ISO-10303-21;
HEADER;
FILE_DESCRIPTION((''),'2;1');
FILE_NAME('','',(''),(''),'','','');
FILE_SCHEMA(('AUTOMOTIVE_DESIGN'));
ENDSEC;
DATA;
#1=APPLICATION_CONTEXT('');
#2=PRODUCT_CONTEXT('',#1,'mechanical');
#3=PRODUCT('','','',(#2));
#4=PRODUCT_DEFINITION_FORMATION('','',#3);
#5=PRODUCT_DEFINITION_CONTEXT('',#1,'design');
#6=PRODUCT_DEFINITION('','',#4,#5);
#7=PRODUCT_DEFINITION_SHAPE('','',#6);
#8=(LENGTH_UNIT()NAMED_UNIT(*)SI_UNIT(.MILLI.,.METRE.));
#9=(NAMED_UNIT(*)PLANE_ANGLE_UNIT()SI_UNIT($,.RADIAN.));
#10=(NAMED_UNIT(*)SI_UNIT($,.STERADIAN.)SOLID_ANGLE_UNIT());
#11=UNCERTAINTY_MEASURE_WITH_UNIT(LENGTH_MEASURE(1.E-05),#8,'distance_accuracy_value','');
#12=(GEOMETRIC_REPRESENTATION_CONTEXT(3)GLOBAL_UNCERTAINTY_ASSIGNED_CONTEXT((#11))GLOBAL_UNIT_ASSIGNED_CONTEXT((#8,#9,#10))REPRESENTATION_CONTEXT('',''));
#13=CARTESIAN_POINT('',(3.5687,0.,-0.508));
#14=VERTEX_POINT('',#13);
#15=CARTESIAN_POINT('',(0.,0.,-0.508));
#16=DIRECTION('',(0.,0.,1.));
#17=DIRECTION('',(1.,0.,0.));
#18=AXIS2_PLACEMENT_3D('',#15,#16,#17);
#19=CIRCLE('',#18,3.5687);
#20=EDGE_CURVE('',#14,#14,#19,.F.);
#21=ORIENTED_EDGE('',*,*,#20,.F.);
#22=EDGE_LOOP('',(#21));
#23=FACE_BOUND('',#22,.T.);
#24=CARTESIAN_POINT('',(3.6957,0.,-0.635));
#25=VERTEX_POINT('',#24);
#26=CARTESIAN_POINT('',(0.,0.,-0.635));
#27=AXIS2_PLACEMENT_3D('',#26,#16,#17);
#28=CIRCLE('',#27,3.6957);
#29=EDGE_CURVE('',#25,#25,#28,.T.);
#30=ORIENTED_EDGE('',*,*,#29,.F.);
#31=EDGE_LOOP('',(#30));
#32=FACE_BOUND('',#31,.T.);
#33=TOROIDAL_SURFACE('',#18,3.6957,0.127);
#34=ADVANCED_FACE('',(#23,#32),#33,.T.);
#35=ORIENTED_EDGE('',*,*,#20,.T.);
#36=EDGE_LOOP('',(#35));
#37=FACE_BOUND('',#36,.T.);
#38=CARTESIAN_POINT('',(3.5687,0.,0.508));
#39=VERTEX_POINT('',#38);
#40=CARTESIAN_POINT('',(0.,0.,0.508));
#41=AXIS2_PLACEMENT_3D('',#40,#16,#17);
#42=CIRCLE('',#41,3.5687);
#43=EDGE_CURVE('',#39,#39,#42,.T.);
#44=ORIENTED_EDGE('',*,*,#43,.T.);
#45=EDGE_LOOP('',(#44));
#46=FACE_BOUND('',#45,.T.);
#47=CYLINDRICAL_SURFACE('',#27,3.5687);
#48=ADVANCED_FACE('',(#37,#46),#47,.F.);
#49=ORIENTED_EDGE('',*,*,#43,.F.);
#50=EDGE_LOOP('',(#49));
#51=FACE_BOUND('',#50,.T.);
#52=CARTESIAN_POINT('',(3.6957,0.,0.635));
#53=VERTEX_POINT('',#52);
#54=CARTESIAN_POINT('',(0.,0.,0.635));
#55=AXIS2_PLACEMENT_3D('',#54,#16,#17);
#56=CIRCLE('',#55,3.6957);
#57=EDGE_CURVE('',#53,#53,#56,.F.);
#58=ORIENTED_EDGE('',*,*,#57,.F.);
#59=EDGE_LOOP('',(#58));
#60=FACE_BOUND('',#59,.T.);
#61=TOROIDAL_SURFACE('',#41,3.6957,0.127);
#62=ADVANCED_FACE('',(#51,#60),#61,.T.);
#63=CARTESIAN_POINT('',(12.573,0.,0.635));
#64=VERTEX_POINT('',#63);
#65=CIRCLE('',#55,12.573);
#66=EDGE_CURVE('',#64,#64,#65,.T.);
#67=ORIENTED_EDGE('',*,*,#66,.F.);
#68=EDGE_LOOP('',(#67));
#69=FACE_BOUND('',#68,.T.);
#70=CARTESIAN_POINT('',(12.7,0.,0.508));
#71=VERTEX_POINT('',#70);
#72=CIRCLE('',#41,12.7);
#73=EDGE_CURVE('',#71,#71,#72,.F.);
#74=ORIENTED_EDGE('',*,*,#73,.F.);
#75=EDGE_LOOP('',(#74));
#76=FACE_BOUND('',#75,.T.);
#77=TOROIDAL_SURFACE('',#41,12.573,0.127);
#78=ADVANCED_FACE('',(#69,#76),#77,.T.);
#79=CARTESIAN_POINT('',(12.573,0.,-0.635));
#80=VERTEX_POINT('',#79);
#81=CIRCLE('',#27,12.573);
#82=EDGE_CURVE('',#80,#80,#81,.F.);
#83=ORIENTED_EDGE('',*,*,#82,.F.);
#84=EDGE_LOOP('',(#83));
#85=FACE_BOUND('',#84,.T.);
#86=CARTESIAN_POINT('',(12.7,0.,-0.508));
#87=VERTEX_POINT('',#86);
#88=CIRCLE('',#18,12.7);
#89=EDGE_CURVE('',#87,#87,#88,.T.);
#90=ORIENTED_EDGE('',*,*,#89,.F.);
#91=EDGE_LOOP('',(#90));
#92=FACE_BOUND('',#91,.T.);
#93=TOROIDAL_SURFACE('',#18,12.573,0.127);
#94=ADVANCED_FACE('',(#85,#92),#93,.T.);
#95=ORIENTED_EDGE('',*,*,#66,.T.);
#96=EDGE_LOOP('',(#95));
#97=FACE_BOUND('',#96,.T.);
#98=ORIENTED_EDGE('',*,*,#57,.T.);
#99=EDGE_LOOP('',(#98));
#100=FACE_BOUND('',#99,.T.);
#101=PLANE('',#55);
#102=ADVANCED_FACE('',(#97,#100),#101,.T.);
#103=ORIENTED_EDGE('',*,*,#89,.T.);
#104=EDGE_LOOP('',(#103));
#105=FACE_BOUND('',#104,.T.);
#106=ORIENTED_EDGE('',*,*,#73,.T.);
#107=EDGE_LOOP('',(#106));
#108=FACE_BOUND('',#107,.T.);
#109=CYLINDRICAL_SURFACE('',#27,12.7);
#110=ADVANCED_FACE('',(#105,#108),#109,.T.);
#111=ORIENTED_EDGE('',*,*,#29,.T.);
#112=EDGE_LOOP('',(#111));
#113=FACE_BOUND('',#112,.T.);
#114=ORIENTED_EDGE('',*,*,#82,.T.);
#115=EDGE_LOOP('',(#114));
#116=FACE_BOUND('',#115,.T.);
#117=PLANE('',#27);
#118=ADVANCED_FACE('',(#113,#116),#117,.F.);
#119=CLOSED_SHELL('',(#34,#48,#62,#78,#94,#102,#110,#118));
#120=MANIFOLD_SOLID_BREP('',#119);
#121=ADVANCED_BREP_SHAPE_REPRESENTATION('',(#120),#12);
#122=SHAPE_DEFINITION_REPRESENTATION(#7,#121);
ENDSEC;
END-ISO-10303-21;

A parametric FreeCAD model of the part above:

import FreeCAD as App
import Part
import Sketcher

V = App.Vector
Q = App.Units.Quantity


def edges_at(feature, points):
    """Names of the edges that pass closest to the given points."""
    edges = feature.Shape.Edges
    near = lambda p: min(range(len(edges)), key=lambda i: edges[i].distToShape(Part.Vertex(*p))[0])
    return sorted({f"Edge{near(p) + 1}" for p in points})

doc = App.newDocument("Part")
body = doc.addObject("PartDesign::Body", "Body")

sketch1 = body.newObject("Sketcher::SketchObject", "Sketch")
sketch1.AttachmentSupport = (doc.getObject("XY_Plane"), [""])
sketch1.MapMode = "FlatFace"
sketch1.AttachmentOffset = App.Placement(V(0, 0, 0.025 * 25.4), App.Rotation())
sketch1.addGeometry([
    Part.Circle(V(0, 0, 0), V(0, 0, 1), 12.7),
    Part.Circle(V(0, 0, 0), V(0, 0, 1), 3.6),
], False)
sketch1.addConstraint([
    Sketcher.Constraint("Coincident", 0, 3, -1, 1),
    Sketcher.Constraint("Coincident", 1, 3, -1, 1),
    Sketcher.Constraint("Diameter", 0, Q("1 in")),
    Sketcher.Constraint("Diameter", 1, Q("0.281 in")),
])
pad1 = body.newObject("PartDesign::Pad", "Pad")
pad1.Profile = sketch1
pad1.Length = Q("0.05 in")
pad1.Reversed = True
doc.recompute()

fillet = body.newObject("PartDesign::Fillet", "Fillet")
fillet.Base = (pad1, edges_at(pad1, [
    (-12.7, 0, 0.635),
    (-12.7, 0, -0.635),
    (-3.569, 0, -0.635),
    (-3.569, 0, 0.635),
]))
fillet.Radius = Q("0.005 in")

doc.recompute()
